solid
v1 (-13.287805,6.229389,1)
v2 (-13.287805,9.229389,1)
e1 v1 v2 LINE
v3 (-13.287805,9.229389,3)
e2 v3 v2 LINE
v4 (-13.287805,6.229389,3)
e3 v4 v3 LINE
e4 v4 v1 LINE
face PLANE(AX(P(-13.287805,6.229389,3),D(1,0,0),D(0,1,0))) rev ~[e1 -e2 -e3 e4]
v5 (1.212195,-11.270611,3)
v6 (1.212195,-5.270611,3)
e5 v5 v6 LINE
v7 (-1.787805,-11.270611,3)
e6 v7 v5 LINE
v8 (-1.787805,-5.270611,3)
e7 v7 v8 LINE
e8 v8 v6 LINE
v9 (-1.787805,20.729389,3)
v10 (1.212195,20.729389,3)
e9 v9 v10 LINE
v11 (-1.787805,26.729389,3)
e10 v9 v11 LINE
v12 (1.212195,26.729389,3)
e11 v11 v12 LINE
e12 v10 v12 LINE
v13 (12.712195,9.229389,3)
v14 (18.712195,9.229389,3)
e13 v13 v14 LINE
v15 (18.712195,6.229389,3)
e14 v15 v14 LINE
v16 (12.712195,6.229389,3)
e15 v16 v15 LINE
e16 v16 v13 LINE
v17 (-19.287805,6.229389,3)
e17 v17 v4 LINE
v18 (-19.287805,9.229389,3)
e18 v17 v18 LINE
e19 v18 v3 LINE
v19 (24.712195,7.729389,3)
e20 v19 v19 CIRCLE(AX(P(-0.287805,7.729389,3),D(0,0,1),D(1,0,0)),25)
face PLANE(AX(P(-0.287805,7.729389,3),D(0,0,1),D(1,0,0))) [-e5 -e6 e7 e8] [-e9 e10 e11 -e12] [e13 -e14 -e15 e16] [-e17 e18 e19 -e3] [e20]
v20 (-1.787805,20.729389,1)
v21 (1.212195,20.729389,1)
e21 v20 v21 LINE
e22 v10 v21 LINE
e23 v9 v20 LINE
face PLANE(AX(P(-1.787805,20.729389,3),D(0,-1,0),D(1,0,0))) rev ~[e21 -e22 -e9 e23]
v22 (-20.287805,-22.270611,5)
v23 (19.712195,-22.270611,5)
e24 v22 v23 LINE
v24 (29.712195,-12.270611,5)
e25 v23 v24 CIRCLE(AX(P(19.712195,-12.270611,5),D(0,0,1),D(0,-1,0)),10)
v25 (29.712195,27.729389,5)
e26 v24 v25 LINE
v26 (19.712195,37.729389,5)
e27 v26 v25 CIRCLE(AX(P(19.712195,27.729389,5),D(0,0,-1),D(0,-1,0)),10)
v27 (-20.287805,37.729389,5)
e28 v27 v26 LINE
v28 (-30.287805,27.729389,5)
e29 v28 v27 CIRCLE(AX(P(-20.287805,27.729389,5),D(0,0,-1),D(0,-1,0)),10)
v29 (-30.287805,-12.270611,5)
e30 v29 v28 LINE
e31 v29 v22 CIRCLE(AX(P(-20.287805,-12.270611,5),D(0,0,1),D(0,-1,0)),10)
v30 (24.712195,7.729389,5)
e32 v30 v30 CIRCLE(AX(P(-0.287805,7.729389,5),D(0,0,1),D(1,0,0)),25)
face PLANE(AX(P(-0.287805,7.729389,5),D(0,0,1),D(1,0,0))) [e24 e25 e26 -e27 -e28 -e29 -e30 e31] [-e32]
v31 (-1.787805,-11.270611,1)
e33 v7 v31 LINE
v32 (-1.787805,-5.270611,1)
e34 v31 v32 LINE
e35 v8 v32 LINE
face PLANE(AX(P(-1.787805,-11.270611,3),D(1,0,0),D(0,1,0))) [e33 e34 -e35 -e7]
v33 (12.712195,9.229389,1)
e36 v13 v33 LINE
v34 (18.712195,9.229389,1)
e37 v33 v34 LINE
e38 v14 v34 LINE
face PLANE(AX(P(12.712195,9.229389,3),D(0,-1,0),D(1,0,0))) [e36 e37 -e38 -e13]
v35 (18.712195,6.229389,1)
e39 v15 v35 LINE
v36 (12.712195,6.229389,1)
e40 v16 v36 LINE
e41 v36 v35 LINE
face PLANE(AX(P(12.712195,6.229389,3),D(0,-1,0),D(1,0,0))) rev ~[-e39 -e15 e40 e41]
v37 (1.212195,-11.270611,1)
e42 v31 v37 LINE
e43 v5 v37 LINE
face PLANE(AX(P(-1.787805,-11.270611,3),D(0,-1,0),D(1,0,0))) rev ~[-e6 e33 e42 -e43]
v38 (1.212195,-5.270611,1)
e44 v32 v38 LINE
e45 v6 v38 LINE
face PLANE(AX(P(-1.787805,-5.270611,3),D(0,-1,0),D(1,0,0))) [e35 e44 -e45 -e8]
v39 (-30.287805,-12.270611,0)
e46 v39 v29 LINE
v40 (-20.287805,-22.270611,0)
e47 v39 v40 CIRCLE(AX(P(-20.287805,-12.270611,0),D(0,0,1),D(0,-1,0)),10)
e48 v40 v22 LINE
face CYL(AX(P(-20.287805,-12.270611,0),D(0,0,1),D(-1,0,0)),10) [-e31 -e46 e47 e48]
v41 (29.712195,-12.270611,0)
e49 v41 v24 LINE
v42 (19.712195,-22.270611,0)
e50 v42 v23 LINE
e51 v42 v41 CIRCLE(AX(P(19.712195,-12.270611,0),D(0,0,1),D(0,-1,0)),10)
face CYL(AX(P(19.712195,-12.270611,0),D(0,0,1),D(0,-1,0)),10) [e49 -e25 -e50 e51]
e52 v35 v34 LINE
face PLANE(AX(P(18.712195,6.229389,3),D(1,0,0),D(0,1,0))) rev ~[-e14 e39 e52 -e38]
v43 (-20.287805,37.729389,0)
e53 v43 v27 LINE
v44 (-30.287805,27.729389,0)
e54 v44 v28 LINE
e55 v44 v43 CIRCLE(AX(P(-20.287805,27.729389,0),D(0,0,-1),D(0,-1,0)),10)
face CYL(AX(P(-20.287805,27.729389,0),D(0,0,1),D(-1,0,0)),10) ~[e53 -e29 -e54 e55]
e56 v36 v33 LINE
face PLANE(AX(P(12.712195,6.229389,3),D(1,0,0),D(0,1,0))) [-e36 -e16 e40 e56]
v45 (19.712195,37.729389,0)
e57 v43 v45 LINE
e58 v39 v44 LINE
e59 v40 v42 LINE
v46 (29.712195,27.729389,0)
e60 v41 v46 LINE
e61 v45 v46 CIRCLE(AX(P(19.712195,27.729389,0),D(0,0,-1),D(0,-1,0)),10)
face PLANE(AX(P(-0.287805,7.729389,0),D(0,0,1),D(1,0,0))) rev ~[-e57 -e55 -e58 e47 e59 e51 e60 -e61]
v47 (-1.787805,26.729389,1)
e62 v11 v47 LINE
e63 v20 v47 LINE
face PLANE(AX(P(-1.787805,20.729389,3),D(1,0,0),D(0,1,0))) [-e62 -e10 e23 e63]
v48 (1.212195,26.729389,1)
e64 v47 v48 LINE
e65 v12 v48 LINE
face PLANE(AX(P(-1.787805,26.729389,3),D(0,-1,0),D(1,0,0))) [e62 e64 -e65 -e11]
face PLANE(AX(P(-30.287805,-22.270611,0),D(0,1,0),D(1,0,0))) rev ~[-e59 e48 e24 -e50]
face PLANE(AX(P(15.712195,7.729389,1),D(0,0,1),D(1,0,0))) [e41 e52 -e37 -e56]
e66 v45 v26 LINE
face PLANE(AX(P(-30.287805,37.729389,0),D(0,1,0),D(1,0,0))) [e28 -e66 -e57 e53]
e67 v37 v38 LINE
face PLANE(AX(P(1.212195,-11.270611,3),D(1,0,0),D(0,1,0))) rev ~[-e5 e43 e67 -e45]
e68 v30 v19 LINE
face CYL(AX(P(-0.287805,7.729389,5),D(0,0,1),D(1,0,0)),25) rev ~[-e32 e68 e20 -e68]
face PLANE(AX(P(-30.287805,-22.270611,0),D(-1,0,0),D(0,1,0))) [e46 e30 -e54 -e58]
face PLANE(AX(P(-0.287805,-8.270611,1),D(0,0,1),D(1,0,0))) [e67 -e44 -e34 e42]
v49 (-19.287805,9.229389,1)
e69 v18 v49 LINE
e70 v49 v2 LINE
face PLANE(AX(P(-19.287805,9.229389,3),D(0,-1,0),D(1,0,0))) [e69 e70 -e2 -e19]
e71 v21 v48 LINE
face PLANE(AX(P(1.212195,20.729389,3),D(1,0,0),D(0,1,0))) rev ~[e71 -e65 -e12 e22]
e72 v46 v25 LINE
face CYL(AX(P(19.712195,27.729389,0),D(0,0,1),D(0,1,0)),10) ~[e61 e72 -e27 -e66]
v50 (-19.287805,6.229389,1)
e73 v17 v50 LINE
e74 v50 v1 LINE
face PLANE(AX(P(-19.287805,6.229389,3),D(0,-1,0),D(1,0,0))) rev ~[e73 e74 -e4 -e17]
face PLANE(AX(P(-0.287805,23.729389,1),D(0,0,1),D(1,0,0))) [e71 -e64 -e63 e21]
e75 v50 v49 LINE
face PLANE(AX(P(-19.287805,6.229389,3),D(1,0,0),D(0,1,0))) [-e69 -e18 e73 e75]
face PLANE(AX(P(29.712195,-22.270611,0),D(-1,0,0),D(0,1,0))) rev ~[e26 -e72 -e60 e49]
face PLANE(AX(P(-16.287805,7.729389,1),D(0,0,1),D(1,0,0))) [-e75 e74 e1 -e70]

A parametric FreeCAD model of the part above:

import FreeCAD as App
import Part
import Sketcher

V = App.Vector


def edges_at(feature, points):
    """Names of the edges that pass closest to the given points."""
    edges = feature.Shape.Edges
    near = lambda p: min(range(len(edges)), key=lambda i: edges[i].distToShape(Part.Vertex(*p))[0])
    return sorted({f"Edge{near(p) + 1}" for p in points})

doc = App.newDocument("Part")
body = doc.addObject("PartDesign::Body", "Body")

# Sketch on XY plane
sketch1 = body.newObject("Sketcher::SketchObject", "Sketch")
sketch1.AttachmentSupport = (doc.getObject("XY_Plane"), [""])
sketch1.MapMode = "FlatFace"
sketch1.addGeometry([
    Part.LineSegment(V(-30, 38, 0), V(-30, -22, 0)),
    Part.LineSegment(V(-30, -22, 0), V(30, -22, 0)),
    Part.LineSegment(V(30, -22, 0), V(30, 38, 0)),
    Part.LineSegment(V(30, 38, 0), V(-30, 38, 0)),
], False)
sketch1.addConstraint([
    Sketcher.Constraint("Coincident", 0, 2, 1, 1),
    Sketcher.Constraint("Coincident", 1, 2, 2, 1),
    Sketcher.Constraint("Coincident", 2, 2, 3, 1),
    Sketcher.Constraint("Coincident", 3, 2, 0, 1),
    Sketcher.Constraint("Vertical", 0),
    Sketcher.Constraint("Horizontal", 1),
    Sketcher.Constraint("Vertical", 2),
    Sketcher.Constraint("Horizontal", 3),
    Sketcher.Constraint("Equal", 3, 0),
    Sketcher.Constraint("DistanceX", 1, 1, 1, 2, 60.0),
    Sketcher.Constraint("DistanceY", 0, 2, -1, 1, 22.270611),
    Sketcher.Constraint("DistanceX", 0, 2, -1, 1, 30.287805),
])
pad1 = body.newObject("PartDesign::Pad", "Pad")
pad1.Profile = sketch1
pad1.Length = 5

# Sketch on XY plane
sketch2 = body.newObject("Sketcher::SketchObject", "Sketch001")
sketch2.AttachmentSupport = (doc.getObject("XY_Plane"), [""])
sketch2.MapMode = "FlatFace"
sketch2.AttachmentOffset = App.Placement(V(0, 0, 5), App.Rotation())
sketch2.addGeometry(Part.Circle(V(0, 8, 0), V(0, 0, 1), 25), False)
sketch2.addConstraint([
    Sketcher.Constraint("Diameter", 0, 50.0),
    Sketcher.Constraint("DistanceY", -1, 1, 0, 3, 7.729389),
    Sketcher.Constraint("DistanceX", 0, 3, -1, 1, 0.287805),
])
pocket1 = body.newObject("PartDesign::Pocket", "Pocket")
pocket1.Profile = sketch2
pocket1.Length = 2
doc.recompute()

fillet = body.newObject("PartDesign::Fillet", "Fillet")
fillet.Base = (pocket1, edges_at(pocket1, [
    (29.712, -22.271, 2.5),
    (29.712, 37.729, 2.5),
    (-30.288, 37.729, 2.5),
    (-30.288, -22.271, 2.5),
]))
fillet.Radius = 10

# Sketch on XY plane
sketch3 = body.newObject("Sketcher::SketchObject", "Sketch002")
sketch3.AttachmentSupport = (doc.getObject("XY_Plane"), [""])
sketch3.MapMode = "FlatFace"
sketch3.AttachmentOffset = App.Placement(V(0, 0, 3), App.Rotation())
sketch3.addGeometry([
    Part.LineSegment(V(-1.8, 26.7, 0), V(-1.8, 20.7, 0)),  # 0
    Part.LineSegment(V(-1.8, 20.7, 0), V(1.2, 20.7, 0)),  # 1
    Part.LineSegment(V(1.2, 20.7, 0), V(1.2, 26.7, 0)),  # 2
    Part.LineSegment(V(1.2, 26.7, 0), V(-1.8, 26.7, 0)),  # 3
    Part.LineSegment(V(-19.3, 9.2, 0), V(-19.3, 6.2, 0)),  # 4
    Part.LineSegment(V(-19.3, 6.2, 0), V(-13.3, 6.2, 0)),  # 5
    Part.LineSegment(V(-13.3, 6.2, 0), V(-13.3, 9.2, 0)),  # 6
    Part.LineSegment(V(-13.3, 9.2, 0), V(-19.3, 9.2, 0)),  # 7
    Part.LineSegment(V(-1.8, -5.3, 0), V(-1.8, -11.3, 0)),  # 8
    Part.LineSegment(V(-1.8, -11.3, 0), V(1.2, -11.3, 0)),  # 9
    Part.LineSegment(V(1.2, -11.3, 0), V(1.2, -5.3, 0)),  # 10
    Part.LineSegment(V(1.2, -5.3, 0), V(-1.8, -5.3, 0)),  # 11
    Part.LineSegment(V(12.7, 9.2, 0), V(12.7, 6.2, 0)),  # 12
    Part.LineSegment(V(12.7, 6.2, 0), V(18.7, 6.2, 0)),  # 13
    Part.LineSegment(V(18.7, 6.2, 0), V(18.7, 9.2, 0)),  # 14
    Part.LineSegment(V(18.7, 9.2, 0), V(12.7, 9.2, 0)),  # 15
], False)
sketch3.addConstraint([
    Sketcher.Constraint("Coincident", 0, 2, 1, 1),
    Sketcher.Constraint("Coincident", 1, 2, 2, 1),
    Sketcher.Constraint("Coincident", 2, 2, 3, 1),
    Sketcher.Constraint("Coincident", 3, 2, 0, 1),
    Sketcher.Constraint("Coincident", 4, 2, 5, 1),
    Sketcher.Constraint("Coincident", 5, 2, 6, 1),
    Sketcher.Constraint("Coincident", 6, 2, 7, 1),
    Sketcher.Constraint("Coincident", 7, 2, 4, 1),
    Sketcher.Constraint("Coincident", 8, 2, 9, 1),
    Sketcher.Constraint("Coincident", 9, 2, 10, 1),
    Sketcher.Constraint("Coincident", 10, 2, 11, 1),
    Sketcher.Constraint("Coincident", 11, 2, 8, 1),
    Sketcher.Constraint("Coincident", 12, 2, 13, 1),
    Sketcher.Constraint("Coincident", 13, 2, 14, 1),
    Sketcher.Constraint("Coincident", 14, 2, 15, 1),
    Sketcher.Constraint("Coincident", 15, 2, 12, 1),
    Sketcher.Constraint("Vertical", 0),
    Sketcher.Constraint("Horizontal", 1),
    Sketcher.Constraint("Vertical", 2),
    Sketcher.Constraint("Horizontal", 3),
    Sketcher.Constraint("Vertical", 4),
    Sketcher.Constraint("Horizontal", 5),
    Sketcher.Constraint("Vertical", 6),
    Sketcher.Constraint("Horizontal", 7),
    Sketcher.Constraint("Vertical", 8),
    Sketcher.Constraint("Horizontal", 9),
    Sketcher.Constraint("Vertical", 10),
    Sketcher.Constraint("Horizontal", 11),
    Sketcher.Constraint("Vertical", 12),
    Sketcher.Constraint("Horizontal", 13),
    Sketcher.Constraint("Vertical", 14),
    Sketcher.Constraint("Horizontal", 15),
    Sketcher.Constraint("Horizontal", 5, 2, 12, 2),
    Sketcher.Constraint("Horizontal", 7, 2, 14, 2),
    Sketcher.Constraint("Vertical", 3, 2, 8, 2),
    Sketcher.Constraint("Vertical", 2, 2, 9, 2),
    Sketcher.Constraint("Equal", 7, 13),
    Sketcher.Constraint("Equal", 15, 0),
    Sketcher.Constraint("Equal", 11, 4),
    Sketcher.Constraint("Equal", 2, 8),
    Sketcher.Constraint("DistanceX", 1, 1, 1, 2, 3.0),
    Sketcher.Constraint("DistanceX", 5, 1, 5, 2, 6.0),
    Sketcher.Constraint("DistanceY", 8, 2, 0, 2, 32.0),
    Sketcher.Constraint("DistanceX", 4, 2, 0, 2, 17.5),
    Sketcher.Constraint("DistanceY", 4, 2, 0, 2, 14.5),
    Sketcher.Constraint("DistanceX", 10, 2, 12, 2, 11.5),
    Sketcher.Constraint("DistanceY", -1, 1, 0, 2, 20.729389),
    Sketcher.Constraint("DistanceX", 0, 2, -1, 1, 1.787805),
])
pocket2 = body.newObject("PartDesign::Pocket", "Pocket001")
pocket2.Profile = sketch3
pocket2.Length = 2

doc.recompute()
